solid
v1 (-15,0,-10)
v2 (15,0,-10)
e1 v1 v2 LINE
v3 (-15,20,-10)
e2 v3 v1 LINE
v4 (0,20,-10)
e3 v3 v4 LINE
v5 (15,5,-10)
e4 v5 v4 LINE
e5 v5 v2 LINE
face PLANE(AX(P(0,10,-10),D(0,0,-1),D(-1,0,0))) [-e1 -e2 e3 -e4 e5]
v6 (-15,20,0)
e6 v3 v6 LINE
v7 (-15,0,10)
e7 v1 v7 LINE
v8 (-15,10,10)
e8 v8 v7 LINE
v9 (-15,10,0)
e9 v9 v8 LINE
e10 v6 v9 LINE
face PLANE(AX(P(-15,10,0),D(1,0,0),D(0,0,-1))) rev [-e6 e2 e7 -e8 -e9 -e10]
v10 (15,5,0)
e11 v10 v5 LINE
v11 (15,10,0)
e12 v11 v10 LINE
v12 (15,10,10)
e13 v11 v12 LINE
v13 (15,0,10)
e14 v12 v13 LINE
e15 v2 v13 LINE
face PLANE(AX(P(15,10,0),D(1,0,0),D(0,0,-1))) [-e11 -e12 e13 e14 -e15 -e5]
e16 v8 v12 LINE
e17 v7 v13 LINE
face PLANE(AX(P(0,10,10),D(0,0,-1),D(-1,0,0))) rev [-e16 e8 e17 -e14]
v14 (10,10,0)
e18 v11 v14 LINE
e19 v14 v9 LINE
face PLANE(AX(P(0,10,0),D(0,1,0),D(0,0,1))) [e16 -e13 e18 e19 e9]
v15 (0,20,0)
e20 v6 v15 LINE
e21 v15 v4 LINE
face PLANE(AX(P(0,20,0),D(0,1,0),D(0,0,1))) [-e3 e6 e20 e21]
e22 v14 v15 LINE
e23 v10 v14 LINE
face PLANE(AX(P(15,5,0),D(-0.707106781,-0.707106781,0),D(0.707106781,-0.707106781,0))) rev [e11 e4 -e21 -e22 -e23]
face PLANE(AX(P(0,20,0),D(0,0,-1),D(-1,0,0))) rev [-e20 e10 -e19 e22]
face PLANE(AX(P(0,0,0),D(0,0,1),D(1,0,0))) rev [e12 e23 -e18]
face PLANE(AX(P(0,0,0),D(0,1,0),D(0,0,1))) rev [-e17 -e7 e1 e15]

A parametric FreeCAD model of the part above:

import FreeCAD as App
import Part
import Sketcher
Q = App.Units.Quantity


def add_polygon(sketch, points):
    """Adds a closed chain of lines whose ends are joined by coincident constraints."""
    first, n = sketch.GeometryCount, len(points)
    for a, b in zip(points, points[1:] + points[:1]):
        sketch.addGeometry(Part.LineSegment(App.Vector(*a, 0), App.Vector(*b, 0)), False)
    for i in range(n):
        sketch.addConstraint(Sketcher.Constraint("Coincident", first + i, 2, first + (i + 1) % n, 1))

doc = App.newDocument("Part")
body = doc.addObject("PartDesign::Body", "Body")

# Sketch on XZ plane
sketch1 = body.newObject("Sketcher::SketchObject", "Sketch")
sketch1.AttachmentSupport = (doc.getObject("XZ_Plane"), [""])
sketch1.MapMode = "FlatFace"
add_polygon(sketch1, [(-15, -10), (-15, 10), (15, 10), (15, -10)])  # lines 0-3
sketch1.addConstraint([
    Sketcher.Constraint("Vertical", 0),
    Sketcher.Constraint("Horizontal", 1),
    Sketcher.Constraint("Vertical", 2),
    Sketcher.Constraint("Horizontal", 3),
    Sketcher.Constraint("Symmetric", 0, 2, 2, 2, -1, 1),
    Sketcher.Constraint("DistanceX", 1, 1, 1, 2, Q("30 mm")),
    Sketcher.Constraint("DistanceY", 0, 1, 0, 2, Q("20 mm")),
])
pad1 = body.newObject("PartDesign::Pad", "Pad")
pad1.Profile = sketch1
pad1.Length = 10
pad1.Reversed = True

# Sketch on XZ plane
sketch2 = body.newObject("Sketcher::SketchObject", "Sketch001")
sketch2.AttachmentSupport = (doc.getObject("XZ_Plane"), [""])
sketch2.MapMode = "FlatFace"
add_polygon(sketch2, [(-15, -10), (-15, 0), (15, 0), (15, -10)])  # lines 0-3
sketch2.addConstraint([
    Sketcher.Constraint("Vertical", 0),
    Sketcher.Constraint("Horizontal", 1),
    Sketcher.Constraint("Vertical", 2),
    Sketcher.Constraint("Horizontal", 3),
    Sketcher.Constraint("Symmetric", 0, 2, 1, 2, -1, 1),
    Sketcher.Constraint("DistanceX", 1, 1, 1, 2, Q("30 mm")),
    Sketcher.Constraint("DistanceY", 0, 1, 0, 2, Q("10 mm")),
])
pad2 = body.newObject("PartDesign::Pad", "Pad001")
pad2.Profile = sketch2
pad2.Length = 20
pad2.Reversed = True

# Sketch on XY plane
sketch3 = body.newObject("Sketcher::SketchObject", "Sketch002")
sketch3.AttachmentSupport = (doc.getObject("XY_Plane"), [""])
sketch3.MapMode = "FlatFace"
sketch3.AttachmentOffset = App.Placement(App.Vector(0, 0, -10), App.Rotation())
add_polygon(sketch3, [(15, 5), (0, 20), (15, 20)])  # lines 0-2
sketch3.addConstraint([
    Sketcher.Constraint("Horizontal", 1),
    Sketcher.Constraint("Vertical", 2),
    Sketcher.Constraint("PointOnObject", 0, 2, -2),
    Sketcher.Constraint("Equal", 1, 2),
    Sketcher.Constraint("DistanceX", 1, 1, 1, 2, Q("15 mm")),
    Sketcher.Constraint("DistanceY", -1, 1, 0, 2, Q("20 mm")),
])
pocket1 = body.newObject("PartDesign::Pocket", "Pocket")
pocket1.Profile = sketch3
pocket1.Length = 10
pocket1.Reversed = True

doc.recompute()
